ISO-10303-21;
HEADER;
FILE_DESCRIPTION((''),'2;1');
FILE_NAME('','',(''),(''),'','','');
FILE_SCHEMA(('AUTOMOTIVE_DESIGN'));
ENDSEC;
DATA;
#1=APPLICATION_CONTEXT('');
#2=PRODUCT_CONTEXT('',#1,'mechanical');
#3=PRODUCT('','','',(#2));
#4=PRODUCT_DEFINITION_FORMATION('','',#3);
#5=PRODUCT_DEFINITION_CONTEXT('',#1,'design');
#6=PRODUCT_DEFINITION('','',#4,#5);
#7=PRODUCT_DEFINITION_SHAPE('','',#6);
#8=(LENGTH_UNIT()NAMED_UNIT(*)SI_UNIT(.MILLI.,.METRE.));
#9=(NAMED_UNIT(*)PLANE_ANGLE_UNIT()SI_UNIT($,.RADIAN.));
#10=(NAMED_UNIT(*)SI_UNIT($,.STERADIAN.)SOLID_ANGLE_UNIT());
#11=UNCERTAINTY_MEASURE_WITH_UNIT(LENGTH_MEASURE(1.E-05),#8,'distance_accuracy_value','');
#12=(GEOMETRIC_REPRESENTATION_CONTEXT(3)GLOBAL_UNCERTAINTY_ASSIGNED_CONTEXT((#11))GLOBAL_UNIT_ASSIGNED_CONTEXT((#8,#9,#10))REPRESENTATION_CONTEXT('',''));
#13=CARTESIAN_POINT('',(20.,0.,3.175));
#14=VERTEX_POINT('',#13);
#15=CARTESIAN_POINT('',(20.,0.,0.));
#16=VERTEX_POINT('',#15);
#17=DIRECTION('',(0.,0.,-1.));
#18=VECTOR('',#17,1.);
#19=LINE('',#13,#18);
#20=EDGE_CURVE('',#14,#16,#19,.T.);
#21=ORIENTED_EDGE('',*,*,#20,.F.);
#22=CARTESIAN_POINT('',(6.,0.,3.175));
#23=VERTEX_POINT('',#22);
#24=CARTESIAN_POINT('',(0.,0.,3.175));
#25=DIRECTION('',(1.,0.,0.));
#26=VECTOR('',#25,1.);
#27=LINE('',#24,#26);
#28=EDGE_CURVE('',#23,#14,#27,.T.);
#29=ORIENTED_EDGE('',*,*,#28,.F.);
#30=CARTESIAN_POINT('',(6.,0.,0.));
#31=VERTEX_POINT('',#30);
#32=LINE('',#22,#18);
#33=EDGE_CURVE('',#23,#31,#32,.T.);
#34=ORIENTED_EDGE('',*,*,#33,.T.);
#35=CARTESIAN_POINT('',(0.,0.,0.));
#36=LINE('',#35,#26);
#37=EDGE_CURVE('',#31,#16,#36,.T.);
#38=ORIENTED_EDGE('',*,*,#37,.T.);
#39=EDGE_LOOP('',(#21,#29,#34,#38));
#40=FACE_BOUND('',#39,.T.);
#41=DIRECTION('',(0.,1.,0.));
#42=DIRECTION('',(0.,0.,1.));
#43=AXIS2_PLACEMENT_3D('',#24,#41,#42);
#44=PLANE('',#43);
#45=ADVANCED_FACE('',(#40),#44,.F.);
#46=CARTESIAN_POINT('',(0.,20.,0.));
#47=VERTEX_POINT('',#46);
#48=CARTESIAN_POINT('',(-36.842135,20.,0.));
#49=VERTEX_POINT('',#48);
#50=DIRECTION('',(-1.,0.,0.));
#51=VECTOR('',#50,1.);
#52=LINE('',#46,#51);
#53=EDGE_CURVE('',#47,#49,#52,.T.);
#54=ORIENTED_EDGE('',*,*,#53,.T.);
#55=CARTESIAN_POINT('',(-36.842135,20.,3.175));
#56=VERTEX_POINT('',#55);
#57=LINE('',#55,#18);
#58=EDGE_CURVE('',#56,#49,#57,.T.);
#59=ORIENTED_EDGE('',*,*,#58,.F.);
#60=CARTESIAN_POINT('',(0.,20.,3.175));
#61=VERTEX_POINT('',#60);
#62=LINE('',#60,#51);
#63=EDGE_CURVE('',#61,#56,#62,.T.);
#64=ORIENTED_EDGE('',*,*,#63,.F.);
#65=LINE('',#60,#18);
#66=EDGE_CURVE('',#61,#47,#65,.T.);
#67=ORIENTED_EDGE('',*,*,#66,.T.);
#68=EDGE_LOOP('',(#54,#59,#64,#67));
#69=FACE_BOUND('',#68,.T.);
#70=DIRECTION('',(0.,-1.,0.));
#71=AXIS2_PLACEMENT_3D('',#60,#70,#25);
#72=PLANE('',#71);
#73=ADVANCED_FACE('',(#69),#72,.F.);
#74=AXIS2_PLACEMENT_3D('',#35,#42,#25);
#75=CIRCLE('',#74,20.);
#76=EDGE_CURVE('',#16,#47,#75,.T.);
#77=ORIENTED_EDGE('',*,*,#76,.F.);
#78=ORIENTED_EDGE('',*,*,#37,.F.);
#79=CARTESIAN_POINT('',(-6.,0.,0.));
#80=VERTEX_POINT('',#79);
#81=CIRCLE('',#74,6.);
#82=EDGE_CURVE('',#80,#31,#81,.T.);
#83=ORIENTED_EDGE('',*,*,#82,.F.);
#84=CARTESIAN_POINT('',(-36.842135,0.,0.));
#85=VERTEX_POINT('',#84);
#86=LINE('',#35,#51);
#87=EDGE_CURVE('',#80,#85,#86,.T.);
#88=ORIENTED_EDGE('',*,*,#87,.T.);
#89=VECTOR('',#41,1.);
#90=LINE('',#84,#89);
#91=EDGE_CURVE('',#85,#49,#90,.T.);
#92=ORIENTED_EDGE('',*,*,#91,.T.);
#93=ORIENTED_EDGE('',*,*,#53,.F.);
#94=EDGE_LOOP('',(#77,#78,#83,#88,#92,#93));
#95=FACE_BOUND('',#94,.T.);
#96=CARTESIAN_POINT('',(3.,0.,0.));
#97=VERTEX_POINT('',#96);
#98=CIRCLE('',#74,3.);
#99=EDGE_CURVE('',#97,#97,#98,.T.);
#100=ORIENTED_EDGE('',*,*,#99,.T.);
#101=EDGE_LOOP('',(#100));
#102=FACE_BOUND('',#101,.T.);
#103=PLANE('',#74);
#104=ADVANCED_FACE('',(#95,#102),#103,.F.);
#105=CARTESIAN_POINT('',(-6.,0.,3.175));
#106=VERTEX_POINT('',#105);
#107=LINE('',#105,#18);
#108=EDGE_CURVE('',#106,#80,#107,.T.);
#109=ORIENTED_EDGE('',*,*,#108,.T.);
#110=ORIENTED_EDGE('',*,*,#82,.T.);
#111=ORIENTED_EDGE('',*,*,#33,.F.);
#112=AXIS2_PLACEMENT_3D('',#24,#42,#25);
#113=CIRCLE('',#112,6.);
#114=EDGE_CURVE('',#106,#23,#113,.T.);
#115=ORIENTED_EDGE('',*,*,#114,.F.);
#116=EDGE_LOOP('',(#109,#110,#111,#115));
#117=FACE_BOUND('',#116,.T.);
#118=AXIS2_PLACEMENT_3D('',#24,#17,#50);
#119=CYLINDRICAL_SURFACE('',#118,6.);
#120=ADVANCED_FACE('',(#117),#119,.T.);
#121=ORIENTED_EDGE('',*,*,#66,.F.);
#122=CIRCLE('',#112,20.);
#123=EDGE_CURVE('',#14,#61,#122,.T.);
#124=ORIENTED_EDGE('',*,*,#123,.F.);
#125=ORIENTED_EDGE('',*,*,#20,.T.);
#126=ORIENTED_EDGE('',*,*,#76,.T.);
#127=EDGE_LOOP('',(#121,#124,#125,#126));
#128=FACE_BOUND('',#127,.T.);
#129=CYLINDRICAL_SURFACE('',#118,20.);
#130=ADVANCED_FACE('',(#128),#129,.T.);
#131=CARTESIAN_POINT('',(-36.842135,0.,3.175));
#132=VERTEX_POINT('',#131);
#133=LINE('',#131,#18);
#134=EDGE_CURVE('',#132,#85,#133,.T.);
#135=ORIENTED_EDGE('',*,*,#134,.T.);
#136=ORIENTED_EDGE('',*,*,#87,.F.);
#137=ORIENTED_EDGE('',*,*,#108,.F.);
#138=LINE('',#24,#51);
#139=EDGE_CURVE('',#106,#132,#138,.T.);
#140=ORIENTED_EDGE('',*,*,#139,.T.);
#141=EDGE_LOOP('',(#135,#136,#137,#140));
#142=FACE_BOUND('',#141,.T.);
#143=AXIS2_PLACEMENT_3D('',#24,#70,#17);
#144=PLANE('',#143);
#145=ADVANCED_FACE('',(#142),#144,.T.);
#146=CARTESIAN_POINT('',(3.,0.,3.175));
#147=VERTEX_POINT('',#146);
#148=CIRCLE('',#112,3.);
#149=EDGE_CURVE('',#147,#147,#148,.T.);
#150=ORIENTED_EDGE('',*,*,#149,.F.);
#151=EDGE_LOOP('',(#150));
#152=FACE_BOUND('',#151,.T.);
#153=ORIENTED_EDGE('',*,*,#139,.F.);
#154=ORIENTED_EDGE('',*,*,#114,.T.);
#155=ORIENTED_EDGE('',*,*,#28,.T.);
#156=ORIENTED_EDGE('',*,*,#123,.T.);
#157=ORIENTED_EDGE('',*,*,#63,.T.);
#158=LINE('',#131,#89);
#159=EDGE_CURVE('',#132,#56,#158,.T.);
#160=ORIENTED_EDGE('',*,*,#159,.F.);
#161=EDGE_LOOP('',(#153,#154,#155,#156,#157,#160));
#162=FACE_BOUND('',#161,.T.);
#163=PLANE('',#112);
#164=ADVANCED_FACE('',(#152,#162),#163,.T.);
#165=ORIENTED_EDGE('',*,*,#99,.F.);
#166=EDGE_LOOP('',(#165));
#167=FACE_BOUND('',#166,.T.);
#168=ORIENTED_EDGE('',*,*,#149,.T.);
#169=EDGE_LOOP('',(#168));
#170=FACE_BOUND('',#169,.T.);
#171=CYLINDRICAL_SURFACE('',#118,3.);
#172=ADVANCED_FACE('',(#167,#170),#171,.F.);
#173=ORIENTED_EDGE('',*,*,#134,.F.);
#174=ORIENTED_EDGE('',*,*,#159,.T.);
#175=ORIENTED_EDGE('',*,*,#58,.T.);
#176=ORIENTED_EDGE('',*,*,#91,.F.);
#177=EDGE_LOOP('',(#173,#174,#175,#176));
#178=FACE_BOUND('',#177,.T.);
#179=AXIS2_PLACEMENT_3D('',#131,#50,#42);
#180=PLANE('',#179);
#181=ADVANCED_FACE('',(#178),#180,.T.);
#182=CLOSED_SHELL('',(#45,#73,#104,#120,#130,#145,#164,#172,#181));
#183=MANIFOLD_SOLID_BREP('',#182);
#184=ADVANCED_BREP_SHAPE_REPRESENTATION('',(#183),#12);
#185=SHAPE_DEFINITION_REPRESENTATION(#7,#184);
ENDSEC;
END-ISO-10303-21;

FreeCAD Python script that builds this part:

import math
import FreeCAD as App
import Part
import Sketcher
Q = App.Units.Quantity

doc = App.newDocument("Part")
params = doc.addObject("Spreadsheet::Sheet", "Params")
for row, (alias, value) in enumerate([
    ("sketch1_diameter", "6 mm"),
    ("sketch1_radius", "6 mm"),
    ("sketch1_radius2", "20 mm"),
    ("pad1_length", "3.175 mm"),
], start=1):
    params.set(f"A{row}", alias)
    params.set(f"B{row}", "=" + value)
    params.setAlias(f"B{row}", alias)

body = doc.addObject("PartDesign::Body", "Body")

sketch1 = body.newObject("Sketcher::SketchObject", "Sketch")
sketch1.AttachmentSupport = (doc.getObject("XY_Plane"), [""])
sketch1.MapMode = "FlatFace"
sketch1.addGeometry([
    Part.ArcOfCircle(Part.Circle(App.Vector(0, 0, 0), App.Vector(0, 0, 1), 6), math.radians(180), math.radians(360)),
    Part.LineSegment(App.Vector(6, 0, 0), App.Vector(20, 0, 0)),
    Part.ArcOfCircle(Part.Circle(App.Vector(0, 0, 0), App.Vector(0, 0, 1), 20), math.radians(0), math.radians(90)),
    Part.LineSegment(App.Vector(0, 20, 0), App.Vector(-36.8, 20, 0)),
    Part.LineSegment(App.Vector(-36.8, 20, 0), App.Vector(-36.8, 0, 0)),
    Part.LineSegment(App.Vector(-36.8, 0, 0), App.Vector(-6, 0, 0)),
    Part.Circle(App.Vector(0, 0, 0), App.Vector(0, 0, 1), 3),
], False)
sketch1.addConstraint([
    Sketcher.Constraint("Coincident", 0, 2, 1, 1),
    Sketcher.Constraint("Coincident", 1, 2, 2, 1),
    Sketcher.Constraint("Tangent", 2, 2, 3, 1),
    Sketcher.Constraint("Coincident", 3, 2, 4, 1),
    Sketcher.Constraint("Coincident", 4, 2, 5, 1),
    Sketcher.Constraint("Coincident", 5, 2, 0, 1),
    Sketcher.Constraint("Horizontal", 1),
    Sketcher.Constraint("Horizontal", 3),
    Sketcher.Constraint("Vertical", 4),
    Sketcher.Constraint("Horizontal", 5),
    Sketcher.Constraint("Coincident", 0, 3, -1, 1),
    Sketcher.Constraint("Coincident", 2, 3, -1, 1),
    Sketcher.Constraint("Coincident", 6, 3, -1, 1),
    Sketcher.Constraint("PointOnObject", 0, 2, -1),
    Sketcher.Constraint("PointOnObject", 4, 2, -1),
    Sketcher.Constraint("Diameter", 6, Q("6 mm")),
    Sketcher.Constraint("Radius", 0, Q("6 mm")),
    Sketcher.Constraint("Radius", 2, Q("20 mm")),
    Sketcher.Constraint("DistanceX", 3, 2, 3, 1, Q("36.842135 mm")),
])
sketch1.setExpression("Constraints[15]", "Params.sketch1_diameter")
sketch1.setExpression("Constraints[16]", "Params.sketch1_radius")
sketch1.setExpression("Constraints[17]", "Params.sketch1_radius2")
pad1 = body.newObject("PartDesign::Pad", "Pad")
pad1.Profile = sketch1
pad1.setExpression("Length", "Params.pad1_length")

doc.recompute()
